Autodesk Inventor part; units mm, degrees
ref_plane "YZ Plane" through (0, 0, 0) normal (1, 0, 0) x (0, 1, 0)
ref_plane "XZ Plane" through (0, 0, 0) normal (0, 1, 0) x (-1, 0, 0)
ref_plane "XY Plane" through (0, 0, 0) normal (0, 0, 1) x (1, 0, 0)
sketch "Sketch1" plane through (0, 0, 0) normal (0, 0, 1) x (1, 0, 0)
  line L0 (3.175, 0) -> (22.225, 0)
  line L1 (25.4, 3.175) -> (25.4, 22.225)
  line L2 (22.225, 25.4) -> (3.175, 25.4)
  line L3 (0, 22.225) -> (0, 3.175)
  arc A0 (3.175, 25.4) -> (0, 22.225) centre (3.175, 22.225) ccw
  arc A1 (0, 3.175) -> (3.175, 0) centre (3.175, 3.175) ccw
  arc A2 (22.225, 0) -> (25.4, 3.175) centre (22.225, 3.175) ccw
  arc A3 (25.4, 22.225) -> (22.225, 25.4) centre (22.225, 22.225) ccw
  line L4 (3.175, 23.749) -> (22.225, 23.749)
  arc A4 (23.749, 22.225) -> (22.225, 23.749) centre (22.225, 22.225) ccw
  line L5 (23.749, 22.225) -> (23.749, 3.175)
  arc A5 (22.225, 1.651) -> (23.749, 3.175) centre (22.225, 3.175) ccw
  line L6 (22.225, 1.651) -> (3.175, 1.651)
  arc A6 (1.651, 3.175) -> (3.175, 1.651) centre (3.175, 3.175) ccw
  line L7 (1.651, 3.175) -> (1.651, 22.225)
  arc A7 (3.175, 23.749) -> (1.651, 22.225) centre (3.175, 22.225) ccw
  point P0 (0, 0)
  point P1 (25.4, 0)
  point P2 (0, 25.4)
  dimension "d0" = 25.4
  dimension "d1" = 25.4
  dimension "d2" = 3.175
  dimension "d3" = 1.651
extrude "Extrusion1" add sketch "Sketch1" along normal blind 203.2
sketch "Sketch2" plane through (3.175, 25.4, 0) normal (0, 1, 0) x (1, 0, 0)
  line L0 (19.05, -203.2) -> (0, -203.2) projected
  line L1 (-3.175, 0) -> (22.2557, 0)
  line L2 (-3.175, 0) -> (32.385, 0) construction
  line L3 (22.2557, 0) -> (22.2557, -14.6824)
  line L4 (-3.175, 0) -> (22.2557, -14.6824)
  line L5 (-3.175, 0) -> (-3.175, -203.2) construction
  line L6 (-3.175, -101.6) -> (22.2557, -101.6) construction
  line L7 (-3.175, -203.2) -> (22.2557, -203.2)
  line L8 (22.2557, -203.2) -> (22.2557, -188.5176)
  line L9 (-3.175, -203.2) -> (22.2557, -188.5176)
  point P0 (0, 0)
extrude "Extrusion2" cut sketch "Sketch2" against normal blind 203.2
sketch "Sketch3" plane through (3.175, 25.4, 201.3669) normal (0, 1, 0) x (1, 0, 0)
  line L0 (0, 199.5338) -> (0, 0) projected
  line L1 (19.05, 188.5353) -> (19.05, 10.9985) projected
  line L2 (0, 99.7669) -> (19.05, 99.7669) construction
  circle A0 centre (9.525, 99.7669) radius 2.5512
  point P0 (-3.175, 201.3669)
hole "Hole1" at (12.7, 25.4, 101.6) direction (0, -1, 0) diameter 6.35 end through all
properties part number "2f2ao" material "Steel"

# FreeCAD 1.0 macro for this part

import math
import FreeCAD as App
import Part
import Sketcher
from FreeCAD import Vector
Q = App.Units.Quantity

doc = App.newDocument("Part")
body = doc.addObject("PartDesign::Body", "Body")

# Sketch on XY plane
sketch1 = body.newObject("Sketcher::SketchObject", "Sketch")
sketch1.AttachmentSupport = (doc.getObject("XY_Plane"), [""])
sketch1.MapMode = "FlatFace"
sketch1.addGeometry([
    Part.ArcOfCircle(Part.Circle(Vector(3.2, 3.2, 0), Vector(0, 0, 1), 3.2), math.radians(180), math.radians(270)),  # 0
    Part.LineSegment(Vector(3.2, 0, 0), Vector(22.2, 0, 0)),  # 1
    Part.ArcOfCircle(Part.Circle(Vector(22.2, 3.2, 0), Vector(0, 0, 1), 3.2), math.radians(-90), math.radians(0)),  # 2
    Part.LineSegment(Vector(25.4, 3.2, 0), Vector(25.4, 22.2, 0)),  # 3
    Part.ArcOfCircle(Part.Circle(Vector(22.2, 22.2, 0), Vector(0, 0, 1), 3.2), math.radians(0), math.radians(90)),  # 4
    Part.LineSegment(Vector(22.2, 25.4, 0), Vector(3.2, 25.4, 0)),  # 5
    Part.ArcOfCircle(Part.Circle(Vector(3.2, 22.2, 0), Vector(0, 0, 1), 3.2), math.radians(90), math.radians(180)),  # 6
    Part.LineSegment(Vector(0, 22.2, 0), Vector(0, 3.2, 0)),  # 7
    Part.ArcOfCircle(Part.Circle(Vector(3.2, 22.2, 0), Vector(0, 0, 1), 1.5), math.radians(90), math.radians(180)),  # 8
    Part.LineSegment(Vector(3.2, 23.7, 0), Vector(22.2, 23.7, 0)),  # 9
    Part.ArcOfCircle(Part.Circle(Vector(22.2, 22.2, 0), Vector(0, 0, 1), 1.5), math.radians(0), math.radians(90)),  # 10
    Part.LineSegment(Vector(23.7, 22.2, 0), Vector(23.7, 3.2, 0)),  # 11
    Part.ArcOfCircle(Part.Circle(Vector(22.2, 3.2, 0), Vector(0, 0, 1), 1.5), math.radians(-90), math.radians(0)),  # 12
    Part.LineSegment(Vector(22.2, 1.7, 0), Vector(3.2, 1.7, 0)),  # 13
    Part.ArcOfCircle(Part.Circle(Vector(3.2, 3.2, 0), Vector(0, 0, 1), 1.5), math.radians(180), math.radians(270)),  # 14
    Part.LineSegment(Vector(1.7, 3.2, 0), Vector(1.7, 22.2, 0)),  # 15
], False)
sketch1.addConstraint([
    Sketcher.Constraint("Tangent", 0, 2, 1, 1),
    Sketcher.Constraint("Tangent", 1, 2, 2, 1),
    Sketcher.Constraint("Tangent", 2, 2, 3, 1),
    Sketcher.Constraint("Tangent", 3, 2, 4, 1),
    Sketcher.Constraint("Tangent", 4, 2, 5, 1),
    Sketcher.Constraint("Tangent", 5, 2, 6, 1),
    Sketcher.Constraint("Tangent", 6, 2, 7, 1),
    Sketcher.Constraint("Tangent", 7, 2, 0, 1),
    Sketcher.Constraint("Tangent", 8, 1, 9, 1),
    Sketcher.Constraint("Tangent", 9, 2, 10, 2),
    Sketcher.Constraint("Tangent", 10, 1, 11, 1),
    Sketcher.Constraint("Tangent", 11, 2, 12, 2),
    Sketcher.Constraint("Tangent", 12, 1, 13, 1),
    Sketcher.Constraint("Tangent", 13, 2, 14, 2),
    Sketcher.Constraint("Tangent", 14, 1, 15, 1),
    Sketcher.Constraint("Tangent", 15, 2, 8, 2),
    Sketcher.Constraint("Horizontal", 1),
    Sketcher.Constraint("Vertical", 3),
    Sketcher.Constraint("Horizontal", 5),
    Sketcher.Constraint("Vertical", 7),
    Sketcher.Constraint("Horizontal", 9),
    Sketcher.Constraint("Vertical", 11),
    Sketcher.Constraint("Horizontal", 13),
    Sketcher.Constraint("Vertical", 15),
    Sketcher.Constraint("Coincident", 8, 3, 6, 3),
    Sketcher.Constraint("Coincident", 10, 3, 4, 3),
    Sketcher.Constraint("Coincident", 12, 3, 2, 3),
    Sketcher.Constraint("Equal", 0, 2),
    Sketcher.Constraint("Equal", 2, 4),
    Sketcher.Constraint("Equal", 4, 6),
    Sketcher.Constraint("Equal", 12, 14),
    Sketcher.Constraint("PointOnObject", 0, 2, -1),
    Sketcher.Constraint("PointOnObject", 6, 2, -2),
    Sketcher.Constraint("Equal", 13, 3),
    Sketcher.Constraint("DistanceX", -1, 1, 2, 2, Q("1 in")),
    Sketcher.Constraint("Radius", 0, Q("0.125 in")),
    Sketcher.Constraint("Radius", 8, Q("0.06 in")),
])
pad1 = body.newObject("PartDesign::Pad", "Pad")
pad1.Profile = sketch1
pad1.Length = Q("8 in")

# Sketch on XZ plane
sketch2 = body.newObject("Sketcher::SketchObject", "Sketch001")
sketch2.AttachmentSupport = (doc.getObject("XZ_Plane"), [""])
sketch2.MapMode = "FlatFace"
sketch2.AttachmentOffset = App.Placement(Vector(0, 0, -1 * 25.4), App.Rotation())
sketch2.addGeometry([
    Part.LineSegment(Vector(0, 203, 0), Vector(25, 203, 0)),  # 0
    Part.LineSegment(Vector(25, 203, 0), Vector(25, 189, 0)),  # 1
    Part.LineSegment(Vector(25, 189, 0), Vector(0, 203, 0)),  # 2
    Part.LineSegment(Vector(25, 0, 0), Vector(0, 0, 0)),  # 3
    Part.LineSegment(Vector(0, 0, 0), Vector(25, 15, 0)),  # 4
    Part.LineSegment(Vector(25, 15, 0), Vector(25, 0, 0)),  # 5
], False)
sketch2.addConstraint([
    Sketcher.Constraint("Coincident", 0, 2, 1, 1),
    Sketcher.Constraint("Coincident", 1, 2, 2, 1),
    Sketcher.Constraint("Coincident", 2, 2, 0, 1),
    Sketcher.Constraint("Coincident", 3, 2, 4, 1),
    Sketcher.Constraint("Coincident", 4, 2, 5, 1),
    Sketcher.Constraint("Coincident", 5, 2, 3, 1),
    Sketcher.Constraint("Horizontal", 0),
    Sketcher.Constraint("Vertical", 1),
    Sketcher.Constraint("Horizontal", 3),
    Sketcher.Constraint("Vertical", 5),
    Sketcher.Constraint("Coincident", 3, 2, -1, 1),
    Sketcher.Constraint("PointOnObject", 2, 2, -2),
    Sketcher.Constraint("Vertical", 1, 2, 4, 2),
    Sketcher.Constraint("Equal", 1, 5),
    Sketcher.Constraint("DistanceY", -1, 1, 0, 2, Q("8 in")),
    Sketcher.Constraint("Angle", 2, Q("150 deg")),
    Sketcher.Constraint("DistanceX", 0, 1, 0, 2, Q("1.0012 in")),
])
pocket1 = body.newObject("PartDesign::Pocket", "Pocket")
pocket1.Profile = sketch2
pocket1.Length = Q("8 in")
pocket1.Reversed = True

# Sketch on XZ plane
sketch3 = body.newObject("Sketcher::SketchObject", "Sketch002")
sketch3.AttachmentSupport = (doc.getObject("XZ_Plane"), [""])
sketch3.MapMode = "FlatFace"
sketch3.AttachmentOffset = App.Placement(Vector(0, 0, -1 * 25.4), App.Rotation())
sketch3.addGeometry(Part.Circle(Vector(12.7, 101.6, 0), Vector(0, 0, 1), 3.2), False)
sketch3.addConstraint([
    Sketcher.Constraint("Diameter", 0, Q("0.25 in")),
    Sketcher.Constraint("DistanceY", -1, 1, 0, 3, Q("4 in")),
    Sketcher.Constraint("DistanceX", -1, 1, 0, 3, Q("0.5 in")),
])
doc.recompute()
hole = body.newObject("PartDesign::Hole", "Hole")
hole.Profile = sketch3
hole.ThreadType = "None"
hole.Diameter = Q("0.25 in")
hole.DepthType = "ThroughAll"
hole.Reversed = True

doc.recompute()
